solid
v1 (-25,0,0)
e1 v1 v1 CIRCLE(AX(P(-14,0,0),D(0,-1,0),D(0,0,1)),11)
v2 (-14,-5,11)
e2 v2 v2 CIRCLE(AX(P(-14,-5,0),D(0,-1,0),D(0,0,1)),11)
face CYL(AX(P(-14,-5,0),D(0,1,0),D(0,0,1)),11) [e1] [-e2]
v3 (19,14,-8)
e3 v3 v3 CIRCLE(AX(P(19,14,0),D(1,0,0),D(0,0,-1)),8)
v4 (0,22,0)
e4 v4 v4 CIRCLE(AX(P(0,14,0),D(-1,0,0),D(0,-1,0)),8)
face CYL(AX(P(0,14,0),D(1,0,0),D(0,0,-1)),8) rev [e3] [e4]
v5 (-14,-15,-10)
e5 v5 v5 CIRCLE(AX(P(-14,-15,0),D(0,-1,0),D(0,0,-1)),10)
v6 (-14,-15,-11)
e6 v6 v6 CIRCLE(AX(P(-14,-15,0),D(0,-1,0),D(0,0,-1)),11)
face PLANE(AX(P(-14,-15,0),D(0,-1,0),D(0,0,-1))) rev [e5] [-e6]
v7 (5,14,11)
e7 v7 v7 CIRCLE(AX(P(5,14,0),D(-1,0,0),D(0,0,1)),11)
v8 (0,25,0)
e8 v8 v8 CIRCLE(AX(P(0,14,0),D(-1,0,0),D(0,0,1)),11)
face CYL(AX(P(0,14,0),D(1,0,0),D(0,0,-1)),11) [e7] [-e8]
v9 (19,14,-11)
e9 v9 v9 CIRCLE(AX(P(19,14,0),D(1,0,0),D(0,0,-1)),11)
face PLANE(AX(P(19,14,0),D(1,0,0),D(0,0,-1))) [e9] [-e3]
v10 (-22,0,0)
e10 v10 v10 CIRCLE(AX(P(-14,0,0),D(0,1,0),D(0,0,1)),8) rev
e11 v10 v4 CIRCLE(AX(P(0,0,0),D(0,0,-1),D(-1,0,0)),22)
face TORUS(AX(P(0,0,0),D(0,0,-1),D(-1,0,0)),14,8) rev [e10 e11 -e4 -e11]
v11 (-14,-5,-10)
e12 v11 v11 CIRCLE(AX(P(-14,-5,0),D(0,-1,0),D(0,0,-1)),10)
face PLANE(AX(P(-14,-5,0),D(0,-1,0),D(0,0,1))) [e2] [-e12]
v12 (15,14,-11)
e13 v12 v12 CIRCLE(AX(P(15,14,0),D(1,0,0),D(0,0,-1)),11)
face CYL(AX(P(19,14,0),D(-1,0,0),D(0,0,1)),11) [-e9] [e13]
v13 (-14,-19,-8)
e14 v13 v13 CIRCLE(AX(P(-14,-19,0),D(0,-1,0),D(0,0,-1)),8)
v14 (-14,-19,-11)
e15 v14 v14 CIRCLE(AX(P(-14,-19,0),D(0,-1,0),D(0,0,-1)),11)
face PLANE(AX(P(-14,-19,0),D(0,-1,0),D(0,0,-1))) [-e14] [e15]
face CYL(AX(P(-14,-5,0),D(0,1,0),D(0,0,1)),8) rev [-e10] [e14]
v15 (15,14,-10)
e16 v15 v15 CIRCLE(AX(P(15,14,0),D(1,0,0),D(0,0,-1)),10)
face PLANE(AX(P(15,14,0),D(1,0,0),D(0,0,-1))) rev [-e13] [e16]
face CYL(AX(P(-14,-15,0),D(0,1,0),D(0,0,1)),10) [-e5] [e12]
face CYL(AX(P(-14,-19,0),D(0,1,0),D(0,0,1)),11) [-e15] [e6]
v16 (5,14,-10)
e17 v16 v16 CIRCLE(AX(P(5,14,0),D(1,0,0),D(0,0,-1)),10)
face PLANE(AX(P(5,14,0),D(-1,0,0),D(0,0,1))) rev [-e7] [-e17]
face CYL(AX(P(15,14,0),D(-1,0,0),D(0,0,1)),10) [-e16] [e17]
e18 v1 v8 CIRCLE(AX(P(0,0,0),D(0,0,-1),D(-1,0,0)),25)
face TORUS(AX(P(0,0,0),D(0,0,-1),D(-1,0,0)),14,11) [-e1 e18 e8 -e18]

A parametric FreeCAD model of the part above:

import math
import FreeCAD as App
import Part
import Sketcher

doc = App.newDocument("Part")
params = doc.addObject("Spreadsheet::Sheet", "Params")
for row, (alias, value) in enumerate([
    ("sketch1_diameter", "22 mm"),
    ("sketch1_diameter2", "16 mm"),
    ("sketch2_radius", "14 mm"),
    ("sketch2_width", "5 mm"),
    ("sketch3_diameter", "20 mm"),
    ("sketch3_diameter2", "16 mm"),
    ("pad1_length", "10 mm"),
    ("sketch4_diameter", "22 mm"),
    ("sketch4_diameter2", "16 mm"),
    ("pad2_length", "4 mm"),
    ("sketch5_diameter", "20 mm"),
    ("sketch5_diameter2", "16 mm"),
    ("pad3_length", "10 mm"),
    ("sketch6_diameter", "22 mm"),
    ("sketch6_diameter2", "16 mm"),
    ("pad4_length", "4 mm"),
], start=1):
    params.set(f"A{row}", alias)
    params.set(f"B{row}", "=" + value)
    params.setAlias(f"B{row}", alias)

body = doc.addObject("PartDesign::Body", "Body")

# Sketch on XZ plane
sketch1 = body.newObject("Sketcher::SketchObject", "Sketch")
sketch1.AttachmentSupport = (doc.getObject("XZ_Plane"), [""])
sketch1.MapMode = "FlatFace"
sketch1.AttachmentOffset = App.Placement(App.Vector(0, 0, 5), App.Rotation())
sketch1.addGeometry(Part.Circle(App.Vector(-14, 0, 0), App.Vector(0, 0, 1), 11), False)
sketch1.addGeometry(Part.Circle(App.Vector(-14, 0, 0), App.Vector(0, 0, 1), 8), False)
sketch1.addConstraint(Sketcher.Constraint("Coincident", 1, 3, 0, 3))
sketch1.addConstraint(Sketcher.Constraint("PointOnObject", 0, 3, -1))
sketch1.addConstraint(Sketcher.Constraint("Diameter", 0, 22.0))
sketch1.addConstraint(Sketcher.Constraint("Diameter", 1, 16.0))
sketch1.addConstraint(Sketcher.Constraint("DistanceX", 0, 3, -1, 1, 14.0))
sketch1.setExpression("Constraints[2]", "Params.sketch1_diameter")
sketch1.setExpression("Constraints[3]", "Params.sketch1_diameter2")

# Sketch on XY plane
sketch2 = body.newObject("Sketcher::SketchObject", "Sketch001")
sketch2.AttachmentSupport = (doc.getObject("XY_Plane"), [""])
sketch2.MapMode = "FlatFace"
sketch2.addGeometry(Part.LineSegment(App.Vector(-14, -5, 0), App.Vector(-14, 0, 0)), False)
sketch2.addGeometry(Part.ArcOfCircle(Part.Circle(App.Vector(0, 0, 0), App.Vector(0, 0, 1), 14), math.radians(89.999999), math.radians(180.000001)), False)
sketch2.addGeometry(Part.LineSegment(App.Vector(0, 14, 0), App.Vector(5, 14, 0)), False)
sketch2.addConstraint(Sketcher.Constraint("Tangent", 0, 2, 1, 2))
sketch2.addConstraint(Sketcher.Constraint("Tangent", 1, 1, 2, 1))
sketch2.addConstraint(Sketcher.Constraint("Vertical", 0))
sketch2.addConstraint(Sketcher.Constraint("Horizontal", 2))
sketch2.addConstraint(Sketcher.Constraint("Coincident", 1, 3, -1, 1))
sketch2.addConstraint(Sketcher.Constraint("Equal", 2, 0))
sketch2.addConstraint(Sketcher.Constraint("Radius", 1, 14.0))
sketch2.addConstraint(Sketcher.Constraint("DistanceX", 2, 1, 2, 2, 5.0))
sketch2.setExpression("Constraints[6]", "Params.sketch2_radius")
sketch2.setExpression("Constraints[7]", "Params.sketch2_width")
doc.recompute()

additivepipe = body.newObject("PartDesign::AdditivePipe", "AdditivePipe")
additivepipe.Profile = sketch1
additivepipe.Spine = (sketch2, ["Edge1", "Edge2", "Edge3"])

# Sketch on XZ plane
sketch3 = body.newObject("Sketcher::SketchObject", "Sketch002")
sketch3.AttachmentSupport = (doc.getObject("XZ_Plane"), [""])
sketch3.MapMode = "FlatFace"
sketch3.AttachmentOffset = App.Placement(App.Vector(0, 0, 5), App.Rotation())
sketch3.addGeometry(Part.Circle(App.Vector(-14, 0, 0), App.Vector(0, 0, 1), 10), False)
sketch3.addGeometry(Part.Circle(App.Vector(-14, 0, 0), App.Vector(0, 0, 1), 8), False)
sketch3.addConstraint(Sketcher.Constraint("Coincident", 1, 3, 0, 3))
sketch3.addConstraint(Sketcher.Constraint("PointOnObject", 0, 3, -1))
sketch3.addConstraint(Sketcher.Constraint("Diameter", 0, 20.0))
sketch3.addConstraint(Sketcher.Constraint("Diameter", 1, 16.0))
sketch3.addConstraint(Sketcher.Constraint("DistanceX", 0, 3, -1, 1, 14.0))
sketch3.setExpression("Constraints[2]", "Params.sketch3_diameter")
sketch3.setExpression("Constraints[3]", "Params.sketch3_diameter2")
pad1 = body.newObject("PartDesign::Pad", "Pad")
pad1.Profile = sketch3
pad1.setExpression("Length", "Params.pad1_length")

# Sketch on XZ plane
sketch4 = body.newObject("Sketcher::SketchObject", "Sketch003")
sketch4.AttachmentSupport = (doc.getObject("XZ_Plane"), [""])
sketch4.MapMode = "FlatFace"
sketch4.AttachmentOffset = App.Placement(App.Vector(0, 0, 15), App.Rotation())
sketch4.addGeometry(Part.Circle(App.Vector(-14, 0, 0), App.Vector(0, 0, 1), 11), False)
sketch4.addGeometry(Part.Circle(App.Vector(-14, 0, 0), App.Vector(0, 0, 1), 8), False)
sketch4.addConstraint(Sketcher.Constraint("Coincident", 1, 3, 0, 3))
sketch4.addConstraint(Sketcher.Constraint("PointOnObject", 0, 3, -1))
sketch4.addConstraint(Sketcher.Constraint("Diameter", 0, 22.0))
sketch4.addConstraint(Sketcher.Constraint("Diameter", 1, 16.0))
sketch4.addConstraint(Sketcher.Constraint("DistanceX", 0, 3, -1, 1, 14.0))
sketch4.setExpression("Constraints[2]", "Params.sketch4_diameter")
sketch4.setExpression("Constraints[3]", "Params.sketch4_diameter2")
pad2 = body.newObject("PartDesign::Pad", "Pad001")
pad2.Profile = sketch4
pad2.setExpression("Length", "Params.pad2_length")

# Sketch on YZ plane
sketch5 = body.newObject("Sketcher::SketchObject", "Sketch004")
sketch5.AttachmentSupport = (doc.getObject("YZ_Plane"), [""])
sketch5.MapMode = "FlatFace"
sketch5.AttachmentOffset = App.Placement(App.Vector(0, 0, 5), App.Rotation())
sketch5.addGeometry(Part.Circle(App.Vector(14, 0, 0), App.Vector(0, 0, 1), 10), False)
sketch5.addGeometry(Part.Circle(App.Vector(14, 0, 0), App.Vector(0, 0, 1), 8), False)
sketch5.addConstraint(Sketcher.Constraint("Coincident", 1, 3, 0, 3))
sketch5.addConstraint(Sketcher.Constraint("PointOnObject", 0, 3, -1))
sketch5.addConstraint(Sketcher.Constraint("Diameter", 0, 20.0))
sketch5.addConstraint(Sketcher.Constraint("Diameter", 1, 16.0))
sketch5.addConstraint(Sketcher.Constraint("DistanceX", -1, 1, 0, 3, 14.0))
sketch5.setExpression("Constraints[2]", "Params.sketch5_diameter")
sketch5.setExpression("Constraints[3]", "Params.sketch5_diameter2")
pad3 = body.newObject("PartDesign::Pad", "Pad002")
pad3.Profile = sketch5
pad3.setExpression("Length", "Params.pad3_length")

# Sketch on YZ plane
sketch6 = body.newObject("Sketcher::SketchObject", "Sketch005")
sketch6.AttachmentSupport = (doc.getObject("YZ_Plane"), [""])
sketch6.MapMode = "FlatFace"
sketch6.AttachmentOffset = App.Placement(App.Vector(0, 0, 15), App.Rotation())
sketch6.addGeometry(Part.Circle(App.Vector(14, 0, 0), App.Vector(0, 0, 1), 11), False)
sketch6.addGeometry(Part.Circle(App.Vector(14, 0, 0), App.Vector(0, 0, 1), 8), False)
sketch6.addConstraint(Sketcher.Constraint("Coincident", 1, 3, 0, 3))
sketch6.addConstraint(Sketcher.Constraint("PointOnObject", 0, 3, -1))
sketch6.addConstraint(Sketcher.Constraint("Diameter", 0, 22.0))
sketch6.addConstraint(Sketcher.Constraint("Diameter", 1, 16.0))
sketch6.addConstraint(Sketcher.Constraint("DistanceX", -1, 1, 0, 3, 14.0))
sketch6.setExpression("Constraints[2]", "Params.sketch6_diameter")
sketch6.setExpression("Constraints[3]", "Params.sketch6_diameter2")
pad4 = body.newObject("PartDesign::Pad", "Pad003")
pad4.Profile = sketch6
pad4.setExpression("Length", "Params.pad4_length")

doc.recompute()
